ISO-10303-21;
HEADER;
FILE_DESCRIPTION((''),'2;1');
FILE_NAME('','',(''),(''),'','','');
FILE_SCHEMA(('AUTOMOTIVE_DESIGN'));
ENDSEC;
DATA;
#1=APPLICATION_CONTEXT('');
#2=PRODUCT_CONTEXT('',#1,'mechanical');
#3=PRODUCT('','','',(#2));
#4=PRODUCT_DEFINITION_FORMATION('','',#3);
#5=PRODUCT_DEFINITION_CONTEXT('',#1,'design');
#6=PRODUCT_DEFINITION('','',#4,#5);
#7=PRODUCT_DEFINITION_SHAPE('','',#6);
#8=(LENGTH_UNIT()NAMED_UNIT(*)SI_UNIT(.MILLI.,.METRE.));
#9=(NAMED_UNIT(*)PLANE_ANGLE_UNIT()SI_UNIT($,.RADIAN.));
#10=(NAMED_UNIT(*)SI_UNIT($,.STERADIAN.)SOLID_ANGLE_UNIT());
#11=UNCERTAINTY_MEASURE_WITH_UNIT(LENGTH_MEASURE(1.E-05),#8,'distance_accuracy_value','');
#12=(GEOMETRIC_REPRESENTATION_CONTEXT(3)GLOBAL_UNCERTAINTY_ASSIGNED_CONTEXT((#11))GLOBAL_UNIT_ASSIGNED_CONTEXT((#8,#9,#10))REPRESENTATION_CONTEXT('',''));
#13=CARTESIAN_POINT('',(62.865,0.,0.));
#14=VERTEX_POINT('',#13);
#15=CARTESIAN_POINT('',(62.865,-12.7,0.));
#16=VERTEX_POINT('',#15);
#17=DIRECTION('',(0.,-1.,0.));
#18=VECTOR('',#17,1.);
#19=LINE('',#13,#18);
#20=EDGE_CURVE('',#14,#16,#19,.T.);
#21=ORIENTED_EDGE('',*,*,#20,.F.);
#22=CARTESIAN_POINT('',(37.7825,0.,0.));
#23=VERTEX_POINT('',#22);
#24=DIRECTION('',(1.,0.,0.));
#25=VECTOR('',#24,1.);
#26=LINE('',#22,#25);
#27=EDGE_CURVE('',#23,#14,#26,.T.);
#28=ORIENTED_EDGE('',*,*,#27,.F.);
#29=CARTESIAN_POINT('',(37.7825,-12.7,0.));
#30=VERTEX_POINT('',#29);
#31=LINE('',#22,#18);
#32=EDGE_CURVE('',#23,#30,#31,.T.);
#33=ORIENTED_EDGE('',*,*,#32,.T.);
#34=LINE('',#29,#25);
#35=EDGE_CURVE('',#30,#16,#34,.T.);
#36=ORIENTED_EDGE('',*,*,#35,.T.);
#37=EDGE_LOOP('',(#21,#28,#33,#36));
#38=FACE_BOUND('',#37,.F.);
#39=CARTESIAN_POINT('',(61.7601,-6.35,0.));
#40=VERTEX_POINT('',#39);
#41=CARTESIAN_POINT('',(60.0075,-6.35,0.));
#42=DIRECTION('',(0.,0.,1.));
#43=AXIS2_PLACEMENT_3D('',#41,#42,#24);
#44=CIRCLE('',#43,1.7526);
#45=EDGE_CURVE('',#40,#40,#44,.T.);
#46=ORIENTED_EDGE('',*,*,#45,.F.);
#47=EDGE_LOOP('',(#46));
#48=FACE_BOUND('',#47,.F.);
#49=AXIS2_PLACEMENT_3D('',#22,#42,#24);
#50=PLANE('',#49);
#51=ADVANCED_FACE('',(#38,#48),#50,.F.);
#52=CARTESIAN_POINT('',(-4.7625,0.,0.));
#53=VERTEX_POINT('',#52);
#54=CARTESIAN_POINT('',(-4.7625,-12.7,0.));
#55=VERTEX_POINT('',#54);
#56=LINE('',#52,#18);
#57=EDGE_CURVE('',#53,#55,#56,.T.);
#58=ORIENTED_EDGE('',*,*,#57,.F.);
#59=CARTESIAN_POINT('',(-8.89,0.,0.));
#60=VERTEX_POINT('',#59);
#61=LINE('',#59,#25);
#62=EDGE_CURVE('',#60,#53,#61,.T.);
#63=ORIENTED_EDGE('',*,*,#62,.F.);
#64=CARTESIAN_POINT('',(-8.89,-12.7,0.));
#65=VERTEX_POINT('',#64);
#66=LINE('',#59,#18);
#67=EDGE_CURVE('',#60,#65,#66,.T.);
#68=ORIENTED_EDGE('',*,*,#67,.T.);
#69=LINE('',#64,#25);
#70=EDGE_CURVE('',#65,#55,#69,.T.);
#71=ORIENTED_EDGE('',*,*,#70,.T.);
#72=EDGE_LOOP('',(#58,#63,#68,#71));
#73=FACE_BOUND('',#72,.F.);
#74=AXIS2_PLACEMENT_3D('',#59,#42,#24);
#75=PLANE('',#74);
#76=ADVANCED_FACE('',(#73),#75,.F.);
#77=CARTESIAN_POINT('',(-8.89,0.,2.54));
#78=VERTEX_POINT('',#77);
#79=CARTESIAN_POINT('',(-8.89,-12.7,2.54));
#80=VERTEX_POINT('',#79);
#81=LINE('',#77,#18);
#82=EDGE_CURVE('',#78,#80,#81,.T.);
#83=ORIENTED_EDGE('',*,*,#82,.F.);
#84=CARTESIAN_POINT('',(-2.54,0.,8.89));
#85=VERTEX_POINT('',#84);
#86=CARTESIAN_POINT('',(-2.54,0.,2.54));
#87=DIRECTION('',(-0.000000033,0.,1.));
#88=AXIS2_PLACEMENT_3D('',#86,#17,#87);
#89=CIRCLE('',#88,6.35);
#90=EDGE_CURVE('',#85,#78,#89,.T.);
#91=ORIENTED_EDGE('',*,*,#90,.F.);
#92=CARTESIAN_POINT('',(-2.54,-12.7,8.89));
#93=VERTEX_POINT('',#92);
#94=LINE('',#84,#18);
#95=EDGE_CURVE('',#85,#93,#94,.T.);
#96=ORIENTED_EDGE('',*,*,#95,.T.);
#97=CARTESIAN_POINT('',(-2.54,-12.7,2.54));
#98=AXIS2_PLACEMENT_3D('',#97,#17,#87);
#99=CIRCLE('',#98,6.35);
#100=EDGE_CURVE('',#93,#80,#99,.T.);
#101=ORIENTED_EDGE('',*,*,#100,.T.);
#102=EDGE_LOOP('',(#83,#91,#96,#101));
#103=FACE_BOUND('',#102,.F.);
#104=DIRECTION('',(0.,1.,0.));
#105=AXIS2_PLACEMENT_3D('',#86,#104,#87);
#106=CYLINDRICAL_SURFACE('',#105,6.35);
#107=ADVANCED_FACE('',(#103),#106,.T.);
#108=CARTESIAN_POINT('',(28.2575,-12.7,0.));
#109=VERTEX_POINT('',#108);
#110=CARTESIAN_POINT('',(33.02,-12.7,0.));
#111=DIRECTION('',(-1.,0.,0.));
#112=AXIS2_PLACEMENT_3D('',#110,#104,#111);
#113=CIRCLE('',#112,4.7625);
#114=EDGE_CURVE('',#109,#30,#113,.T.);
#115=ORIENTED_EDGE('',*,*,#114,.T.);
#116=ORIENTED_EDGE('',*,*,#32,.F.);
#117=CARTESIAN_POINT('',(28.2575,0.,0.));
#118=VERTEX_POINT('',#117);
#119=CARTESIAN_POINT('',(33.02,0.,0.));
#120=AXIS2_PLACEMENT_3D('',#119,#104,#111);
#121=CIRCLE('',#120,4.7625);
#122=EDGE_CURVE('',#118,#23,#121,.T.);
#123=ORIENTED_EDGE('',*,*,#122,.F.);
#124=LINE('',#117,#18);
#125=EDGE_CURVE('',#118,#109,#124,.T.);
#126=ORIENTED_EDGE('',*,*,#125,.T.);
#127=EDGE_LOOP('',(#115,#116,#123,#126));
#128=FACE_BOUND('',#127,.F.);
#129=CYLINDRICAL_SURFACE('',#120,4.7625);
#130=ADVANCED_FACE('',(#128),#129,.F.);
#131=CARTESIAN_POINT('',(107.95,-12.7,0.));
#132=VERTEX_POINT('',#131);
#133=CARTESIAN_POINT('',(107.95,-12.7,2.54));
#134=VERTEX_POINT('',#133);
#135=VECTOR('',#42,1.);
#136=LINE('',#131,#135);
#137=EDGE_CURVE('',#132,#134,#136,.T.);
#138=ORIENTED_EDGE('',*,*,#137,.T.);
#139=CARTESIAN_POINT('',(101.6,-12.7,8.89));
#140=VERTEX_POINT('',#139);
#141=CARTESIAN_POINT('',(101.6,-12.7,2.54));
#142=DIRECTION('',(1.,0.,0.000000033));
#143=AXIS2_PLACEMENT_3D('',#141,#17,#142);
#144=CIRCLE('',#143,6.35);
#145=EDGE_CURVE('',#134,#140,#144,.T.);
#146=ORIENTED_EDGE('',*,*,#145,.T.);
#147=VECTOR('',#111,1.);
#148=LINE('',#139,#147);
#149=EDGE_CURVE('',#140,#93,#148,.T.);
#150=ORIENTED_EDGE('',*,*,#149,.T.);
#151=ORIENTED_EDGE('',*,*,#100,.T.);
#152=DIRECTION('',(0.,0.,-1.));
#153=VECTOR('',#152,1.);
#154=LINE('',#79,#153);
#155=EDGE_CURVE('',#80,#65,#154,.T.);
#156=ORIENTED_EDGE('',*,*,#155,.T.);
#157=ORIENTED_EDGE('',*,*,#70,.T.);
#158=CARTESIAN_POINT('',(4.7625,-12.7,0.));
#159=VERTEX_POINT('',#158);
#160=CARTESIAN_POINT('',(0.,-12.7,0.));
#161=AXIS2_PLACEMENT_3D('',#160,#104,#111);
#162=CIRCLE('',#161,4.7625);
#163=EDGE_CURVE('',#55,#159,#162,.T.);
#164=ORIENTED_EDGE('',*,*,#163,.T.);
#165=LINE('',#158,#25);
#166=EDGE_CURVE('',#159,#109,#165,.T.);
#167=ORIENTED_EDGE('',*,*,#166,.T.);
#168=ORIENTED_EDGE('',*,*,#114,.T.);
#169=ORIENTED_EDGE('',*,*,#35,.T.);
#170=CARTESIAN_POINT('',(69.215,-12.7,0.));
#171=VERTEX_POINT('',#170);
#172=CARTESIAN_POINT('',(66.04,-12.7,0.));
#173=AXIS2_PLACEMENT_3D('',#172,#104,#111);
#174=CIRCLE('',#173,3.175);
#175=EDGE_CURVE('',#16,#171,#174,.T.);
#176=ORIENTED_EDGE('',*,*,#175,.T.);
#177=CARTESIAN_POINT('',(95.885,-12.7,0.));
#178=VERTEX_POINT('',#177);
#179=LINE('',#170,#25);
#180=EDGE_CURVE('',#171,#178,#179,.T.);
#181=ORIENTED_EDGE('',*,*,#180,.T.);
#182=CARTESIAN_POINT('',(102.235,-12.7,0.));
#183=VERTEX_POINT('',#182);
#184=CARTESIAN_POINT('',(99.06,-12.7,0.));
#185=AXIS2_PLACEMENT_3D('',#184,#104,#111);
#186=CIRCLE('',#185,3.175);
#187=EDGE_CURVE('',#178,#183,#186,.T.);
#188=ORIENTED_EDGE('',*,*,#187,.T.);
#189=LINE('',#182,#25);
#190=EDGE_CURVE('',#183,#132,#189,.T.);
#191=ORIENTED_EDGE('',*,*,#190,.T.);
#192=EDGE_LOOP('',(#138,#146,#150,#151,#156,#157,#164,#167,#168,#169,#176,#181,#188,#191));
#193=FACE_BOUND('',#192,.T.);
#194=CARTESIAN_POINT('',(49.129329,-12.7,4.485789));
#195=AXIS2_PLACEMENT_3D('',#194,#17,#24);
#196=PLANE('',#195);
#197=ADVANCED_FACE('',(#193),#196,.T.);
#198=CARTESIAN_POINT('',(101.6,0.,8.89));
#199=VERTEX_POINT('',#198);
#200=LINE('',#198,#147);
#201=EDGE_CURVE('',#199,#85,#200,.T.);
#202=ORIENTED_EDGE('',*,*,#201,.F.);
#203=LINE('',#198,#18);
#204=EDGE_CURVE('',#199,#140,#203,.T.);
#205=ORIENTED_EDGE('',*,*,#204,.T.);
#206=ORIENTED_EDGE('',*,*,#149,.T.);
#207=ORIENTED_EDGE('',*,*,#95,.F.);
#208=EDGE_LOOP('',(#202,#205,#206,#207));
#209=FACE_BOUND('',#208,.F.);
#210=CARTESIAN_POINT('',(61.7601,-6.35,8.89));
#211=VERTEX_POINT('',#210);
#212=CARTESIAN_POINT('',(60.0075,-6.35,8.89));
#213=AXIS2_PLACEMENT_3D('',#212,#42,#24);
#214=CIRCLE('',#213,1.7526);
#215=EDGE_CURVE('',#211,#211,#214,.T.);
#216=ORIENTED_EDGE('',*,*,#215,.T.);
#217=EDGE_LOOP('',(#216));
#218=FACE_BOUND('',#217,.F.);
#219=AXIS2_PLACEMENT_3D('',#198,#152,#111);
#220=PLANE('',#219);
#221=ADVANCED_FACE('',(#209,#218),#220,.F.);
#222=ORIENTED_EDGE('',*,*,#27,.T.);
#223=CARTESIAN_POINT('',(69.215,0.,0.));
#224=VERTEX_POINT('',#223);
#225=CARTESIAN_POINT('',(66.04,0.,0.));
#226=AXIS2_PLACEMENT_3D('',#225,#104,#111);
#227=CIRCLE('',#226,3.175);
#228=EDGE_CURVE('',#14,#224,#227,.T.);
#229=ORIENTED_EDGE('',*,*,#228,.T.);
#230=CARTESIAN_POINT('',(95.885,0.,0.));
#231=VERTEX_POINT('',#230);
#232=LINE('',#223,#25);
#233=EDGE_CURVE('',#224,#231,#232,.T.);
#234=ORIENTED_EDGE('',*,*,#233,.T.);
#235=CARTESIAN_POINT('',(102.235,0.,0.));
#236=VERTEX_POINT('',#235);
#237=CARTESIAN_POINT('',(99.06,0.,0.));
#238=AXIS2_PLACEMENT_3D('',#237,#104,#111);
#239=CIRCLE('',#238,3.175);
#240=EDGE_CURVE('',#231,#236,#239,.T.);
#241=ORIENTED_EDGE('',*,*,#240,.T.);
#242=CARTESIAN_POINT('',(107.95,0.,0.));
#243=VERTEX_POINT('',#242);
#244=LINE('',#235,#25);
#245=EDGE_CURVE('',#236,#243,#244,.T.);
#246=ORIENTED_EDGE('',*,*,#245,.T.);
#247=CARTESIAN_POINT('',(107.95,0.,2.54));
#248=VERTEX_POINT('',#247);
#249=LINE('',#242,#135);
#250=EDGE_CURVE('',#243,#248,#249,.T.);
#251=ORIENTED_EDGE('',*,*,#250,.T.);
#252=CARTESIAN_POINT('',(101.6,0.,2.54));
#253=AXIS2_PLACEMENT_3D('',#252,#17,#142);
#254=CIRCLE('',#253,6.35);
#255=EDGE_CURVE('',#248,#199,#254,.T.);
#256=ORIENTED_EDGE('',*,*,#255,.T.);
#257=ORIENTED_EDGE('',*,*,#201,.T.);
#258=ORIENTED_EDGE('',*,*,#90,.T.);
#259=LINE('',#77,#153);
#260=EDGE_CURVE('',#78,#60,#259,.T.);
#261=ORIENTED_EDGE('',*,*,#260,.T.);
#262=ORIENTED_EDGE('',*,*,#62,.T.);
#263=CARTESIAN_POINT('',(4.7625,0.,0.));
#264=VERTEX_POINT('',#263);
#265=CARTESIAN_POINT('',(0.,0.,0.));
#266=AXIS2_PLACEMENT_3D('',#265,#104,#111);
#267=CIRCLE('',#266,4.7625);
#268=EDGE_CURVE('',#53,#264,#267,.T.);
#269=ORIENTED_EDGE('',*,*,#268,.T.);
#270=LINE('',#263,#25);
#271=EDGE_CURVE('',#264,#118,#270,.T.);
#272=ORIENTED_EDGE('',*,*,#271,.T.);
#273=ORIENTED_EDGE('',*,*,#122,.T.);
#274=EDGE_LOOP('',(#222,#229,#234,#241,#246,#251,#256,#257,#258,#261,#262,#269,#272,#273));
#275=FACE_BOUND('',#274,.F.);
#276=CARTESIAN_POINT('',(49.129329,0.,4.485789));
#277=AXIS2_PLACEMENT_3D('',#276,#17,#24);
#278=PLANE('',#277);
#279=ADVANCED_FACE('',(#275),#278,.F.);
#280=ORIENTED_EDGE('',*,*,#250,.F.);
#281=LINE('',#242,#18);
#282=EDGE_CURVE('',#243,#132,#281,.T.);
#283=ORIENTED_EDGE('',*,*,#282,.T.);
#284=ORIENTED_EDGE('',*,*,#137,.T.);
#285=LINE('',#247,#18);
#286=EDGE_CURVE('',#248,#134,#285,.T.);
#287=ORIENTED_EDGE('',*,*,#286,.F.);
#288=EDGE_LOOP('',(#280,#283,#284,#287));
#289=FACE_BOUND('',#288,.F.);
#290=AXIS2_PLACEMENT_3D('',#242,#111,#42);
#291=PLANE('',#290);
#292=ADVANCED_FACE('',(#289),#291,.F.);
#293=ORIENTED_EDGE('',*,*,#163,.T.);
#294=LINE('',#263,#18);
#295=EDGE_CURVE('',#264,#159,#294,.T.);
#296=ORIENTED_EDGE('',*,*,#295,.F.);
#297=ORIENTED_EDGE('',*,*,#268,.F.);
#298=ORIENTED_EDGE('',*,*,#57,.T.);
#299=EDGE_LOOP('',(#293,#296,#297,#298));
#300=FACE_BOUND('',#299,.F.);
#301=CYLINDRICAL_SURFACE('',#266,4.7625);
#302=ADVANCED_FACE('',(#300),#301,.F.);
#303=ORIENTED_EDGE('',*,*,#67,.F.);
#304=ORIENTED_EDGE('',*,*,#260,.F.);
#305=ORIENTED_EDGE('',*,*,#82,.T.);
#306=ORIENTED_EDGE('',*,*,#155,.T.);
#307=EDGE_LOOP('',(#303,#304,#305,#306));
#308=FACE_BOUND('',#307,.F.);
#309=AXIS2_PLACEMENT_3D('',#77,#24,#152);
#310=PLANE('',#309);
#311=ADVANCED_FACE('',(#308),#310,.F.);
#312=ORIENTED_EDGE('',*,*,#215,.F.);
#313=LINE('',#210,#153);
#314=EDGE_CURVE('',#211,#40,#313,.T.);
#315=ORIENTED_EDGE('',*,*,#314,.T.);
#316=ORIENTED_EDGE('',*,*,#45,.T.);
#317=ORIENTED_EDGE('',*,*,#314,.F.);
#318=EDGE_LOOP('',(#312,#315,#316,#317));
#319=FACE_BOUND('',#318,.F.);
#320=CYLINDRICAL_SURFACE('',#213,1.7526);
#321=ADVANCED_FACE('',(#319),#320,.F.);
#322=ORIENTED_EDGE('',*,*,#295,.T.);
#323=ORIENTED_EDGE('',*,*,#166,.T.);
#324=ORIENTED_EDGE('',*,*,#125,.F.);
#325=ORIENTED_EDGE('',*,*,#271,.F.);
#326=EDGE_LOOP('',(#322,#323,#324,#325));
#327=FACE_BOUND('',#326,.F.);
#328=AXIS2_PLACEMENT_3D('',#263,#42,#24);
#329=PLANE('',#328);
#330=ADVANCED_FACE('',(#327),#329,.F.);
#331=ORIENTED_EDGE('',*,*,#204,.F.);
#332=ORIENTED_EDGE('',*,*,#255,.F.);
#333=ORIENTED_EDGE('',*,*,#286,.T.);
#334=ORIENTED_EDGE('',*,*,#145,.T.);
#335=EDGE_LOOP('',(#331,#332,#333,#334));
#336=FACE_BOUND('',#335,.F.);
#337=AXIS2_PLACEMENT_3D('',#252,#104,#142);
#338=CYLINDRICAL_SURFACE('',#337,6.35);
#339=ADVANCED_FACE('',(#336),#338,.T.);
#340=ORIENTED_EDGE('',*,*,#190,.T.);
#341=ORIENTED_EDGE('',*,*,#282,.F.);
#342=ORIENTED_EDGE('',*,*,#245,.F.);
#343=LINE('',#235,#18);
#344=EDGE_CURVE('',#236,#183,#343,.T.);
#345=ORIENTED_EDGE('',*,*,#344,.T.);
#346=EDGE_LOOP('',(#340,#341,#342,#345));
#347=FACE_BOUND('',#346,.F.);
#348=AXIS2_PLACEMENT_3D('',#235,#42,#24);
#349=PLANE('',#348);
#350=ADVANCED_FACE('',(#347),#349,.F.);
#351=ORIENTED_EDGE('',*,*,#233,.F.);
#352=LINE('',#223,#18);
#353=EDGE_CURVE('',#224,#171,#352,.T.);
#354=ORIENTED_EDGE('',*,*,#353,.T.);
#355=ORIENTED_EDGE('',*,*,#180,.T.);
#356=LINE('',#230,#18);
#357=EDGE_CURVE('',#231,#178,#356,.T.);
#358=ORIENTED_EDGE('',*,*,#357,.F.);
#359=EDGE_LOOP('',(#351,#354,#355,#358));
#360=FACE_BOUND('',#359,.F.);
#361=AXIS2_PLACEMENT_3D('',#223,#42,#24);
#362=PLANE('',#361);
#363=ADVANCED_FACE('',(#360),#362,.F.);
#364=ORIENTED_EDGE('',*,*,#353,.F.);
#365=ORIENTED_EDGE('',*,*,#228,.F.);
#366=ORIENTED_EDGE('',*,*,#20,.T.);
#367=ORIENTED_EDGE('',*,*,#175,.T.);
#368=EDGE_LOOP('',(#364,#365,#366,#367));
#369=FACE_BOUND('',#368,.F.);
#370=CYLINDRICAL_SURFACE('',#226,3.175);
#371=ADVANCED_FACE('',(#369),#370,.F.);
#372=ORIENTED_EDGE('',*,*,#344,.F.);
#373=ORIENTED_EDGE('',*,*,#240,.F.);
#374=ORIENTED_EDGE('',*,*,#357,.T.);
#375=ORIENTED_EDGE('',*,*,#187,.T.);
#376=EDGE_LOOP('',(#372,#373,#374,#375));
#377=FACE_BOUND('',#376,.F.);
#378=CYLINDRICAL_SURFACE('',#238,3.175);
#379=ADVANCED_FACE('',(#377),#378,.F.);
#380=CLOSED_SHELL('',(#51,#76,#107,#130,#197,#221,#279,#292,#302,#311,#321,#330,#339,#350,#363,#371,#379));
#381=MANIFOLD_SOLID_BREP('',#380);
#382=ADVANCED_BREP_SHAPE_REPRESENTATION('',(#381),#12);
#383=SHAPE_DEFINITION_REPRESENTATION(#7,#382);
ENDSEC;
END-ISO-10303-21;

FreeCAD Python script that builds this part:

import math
import FreeCAD as App
import Part
import Sketcher
Q = App.Units.Quantity

doc = App.newDocument("Part")
params = doc.addObject("Spreadsheet::Sheet", "Params")
for row, (alias, value) in enumerate([
    ("sketch1_radius", "0.25 in"),
    ("sketch1_width", "4.1 in"),
    ("sketch1_height", "0.1 in"),
    ("sketch1_radius2", "0.1875 in"),
    ("sketch1_radius3", "0.125 in"),
    ("pad1_length", "0.5 in"),
    ("sketch2_diameter", "0.138 in"),
    ("pocket1_length", "1 in"),
], start=1):
    params.set(f"A{row}", alias)
    params.set(f"B{row}", "=" + value)
    params.setAlias(f"B{row}", alias)

body = doc.addObject("PartDesign::Body", "Body")

# Sketch on XZ plane
sketch1 = body.newObject("Sketcher::SketchObject", "Sketch")
sketch1.AttachmentSupport = (doc.getObject("XZ_Plane"), [""])
sketch1.MapMode = "FlatFace"
sketch1.addGeometry([
    Part.ArcOfCircle(Part.Circle(App.Vector(0, 0, 0), App.Vector(0, 0, 1), 4.8), math.radians(0), math.radians(180)),  # 0
    Part.LineSegment(App.Vector(4.8, 0, 0), App.Vector(28.3, 0, 0)),  # 1
    Part.ArcOfCircle(Part.Circle(App.Vector(33, 0, 0), App.Vector(0, 0, 1), 4.8), math.radians(0), math.radians(180)),  # 2
    Part.LineSegment(App.Vector(37.8, 0, 0), App.Vector(62.9, 0, 0)),  # 3
    Part.ArcOfCircle(Part.Circle(App.Vector(66, 0, 0), App.Vector(0, 0, 1), 3.2), math.radians(0), math.radians(180)),  # 4
    Part.LineSegment(App.Vector(69.2, 0, 0), App.Vector(95.9, 0, 0)),  # 5
    Part.ArcOfCircle(Part.Circle(App.Vector(99.1, 0, 0), App.Vector(0, 0, 1), 3.2), math.radians(0), math.radians(180)),  # 6
    Part.LineSegment(App.Vector(102.2, 0, 0), App.Vector(108, 0, 0)),  # 7
    Part.LineSegment(App.Vector(108, 0, 0), App.Vector(108, 2.5, 0)),  # 8
    Part.ArcOfCircle(Part.Circle(App.Vector(101.6, 2.5, 0), App.Vector(0, 0, 1), 6.4), math.radians(0), math.radians(90)),  # 9
    Part.LineSegment(App.Vector(101.6, 8.9, 0), App.Vector(-2.5, 8.9, 0)),  # 10
    Part.ArcOfCircle(Part.Circle(App.Vector(-2.5, 2.5, 0), App.Vector(0, 0, 1), 6.4), math.radians(90), math.radians(180)),  # 11
    Part.LineSegment(App.Vector(-8.9, 2.5, 0), App.Vector(-8.9, 0, 0)),  # 12
    Part.LineSegment(App.Vector(-8.9, 0, 0), App.Vector(-4.8, 0, 0)),  # 13
], False)
sketch1.addConstraint([
    Sketcher.Constraint("Coincident", 0, 1, 1, 1),
    Sketcher.Constraint("Coincident", 1, 2, 2, 2),
    Sketcher.Constraint("Coincident", 2, 1, 3, 1),
    Sketcher.Constraint("Coincident", 3, 2, 4, 2),
    Sketcher.Constraint("Coincident", 4, 1, 5, 1),
    Sketcher.Constraint("Coincident", 5, 2, 6, 2),
    Sketcher.Constraint("Coincident", 6, 1, 7, 1),
    Sketcher.Constraint("Coincident", 7, 2, 8, 1),
    Sketcher.Constraint("Tangent", 8, 2, 9, 1),
    Sketcher.Constraint("Tangent", 9, 2, 10, 1),
    Sketcher.Constraint("Tangent", 10, 2, 11, 1),
    Sketcher.Constraint("Tangent", 11, 2, 12, 1),
    Sketcher.Constraint("Coincident", 12, 2, 13, 1),
    Sketcher.Constraint("Coincident", 13, 2, 0, 2),
    Sketcher.Constraint("Horizontal", 1),
    Sketcher.Constraint("Horizontal", 3),
    Sketcher.Constraint("Horizontal", 5),
    Sketcher.Constraint("Horizontal", 7),
    Sketcher.Constraint("Vertical", 8),
    Sketcher.Constraint("Horizontal", 10),
    Sketcher.Constraint("Vertical", 12),
    Sketcher.Constraint("Horizontal", 13),
    Sketcher.Constraint("Coincident", 0, 3, -1, 1),
    Sketcher.Constraint("Equal", 0, 2),
    Sketcher.Constraint("Equal", 4, 6),
    Sketcher.Constraint("Equal", 9, 11),
    Sketcher.Constraint("PointOnObject", 2, 3, -1),
    Sketcher.Constraint("PointOnObject", 4, 3, -1),
    Sketcher.Constraint("PointOnObject", 6, 3, -1),
    Sketcher.Constraint("PointOnObject", 0, 1, -1),
    Sketcher.Constraint("PointOnObject", 2, 1, -1),
    Sketcher.Constraint("PointOnObject", 4, 1, -1),
    Sketcher.Constraint("PointOnObject", 6, 1, -1),
    Sketcher.Constraint("PointOnObject", 12, 2, -1),
    Sketcher.Constraint("Radius", 9, Q("0.25 in")),
    Sketcher.Constraint("DistanceX", 10, 2, 10, 1, Q("4.1 in")),
    Sketcher.Constraint("DistanceY", 8, 1, 8, 2, Q("0.1 in")),
    Sketcher.Constraint("DistanceX", -1, 1, 9, 3, Q("4 in")),
    Sketcher.Constraint("Radius", 0, Q("0.1875 in")),
    Sketcher.Constraint("Radius", 4, Q("0.125 in")),
    Sketcher.Constraint("DistanceX", 11, 3, 6, 3, Q("4 in")),
    Sketcher.Constraint("DistanceX", 5, 1, 5, 2, Q("1.05 in")),
    Sketcher.Constraint("DistanceX", -1, 1, 2, 3, Q("1.3 in")),
])
sketch1.setExpression("Constraints[34]", "Params.sketch1_radius")
sketch1.setExpression("Constraints[35]", "Params.sketch1_width")
sketch1.setExpression("Constraints[36]", "Params.sketch1_height")
sketch1.setExpression("Constraints[38]", "Params.sketch1_radius2")
sketch1.setExpression("Constraints[39]", "Params.sketch1_radius3")
pad1 = body.newObject("PartDesign::Pad", "Pad")
pad1.Profile = sketch1
pad1.setExpression("Length", "Params.pad1_length")

# Sketch on XY plane
sketch2 = body.newObject("Sketcher::SketchObject", "Sketch001")
sketch2.AttachmentSupport = (doc.getObject("XY_Plane"), [""])
sketch2.MapMode = "FlatFace"
sketch2.AttachmentOffset = App.Placement(App.Vector(0, 0, 0.35 * 25.4), App.Rotation())
sketch2.addGeometry(Part.Circle(App.Vector(60, -6.3, 0), App.Vector(0, 0, 1), 1.8), False)
sketch2.addConstraint([
    Sketcher.Constraint("Diameter", 0, Q("0.138 in")),
    Sketcher.Constraint("DistanceY", 0, 3, -1, 1, Q("0.25 in")),
    Sketcher.Constraint("DistanceX", -1, 1, 0, 3, Q("2.3625 in")),
])
sketch2.setExpression("Constraints[0]", "Params.sketch2_diameter")
pocket1 = body.newObject("PartDesign::Pocket", "Pocket")
pocket1.Profile = sketch2
pocket1.setExpression("Length", "Params.pocket1_length")

doc.recompute()
